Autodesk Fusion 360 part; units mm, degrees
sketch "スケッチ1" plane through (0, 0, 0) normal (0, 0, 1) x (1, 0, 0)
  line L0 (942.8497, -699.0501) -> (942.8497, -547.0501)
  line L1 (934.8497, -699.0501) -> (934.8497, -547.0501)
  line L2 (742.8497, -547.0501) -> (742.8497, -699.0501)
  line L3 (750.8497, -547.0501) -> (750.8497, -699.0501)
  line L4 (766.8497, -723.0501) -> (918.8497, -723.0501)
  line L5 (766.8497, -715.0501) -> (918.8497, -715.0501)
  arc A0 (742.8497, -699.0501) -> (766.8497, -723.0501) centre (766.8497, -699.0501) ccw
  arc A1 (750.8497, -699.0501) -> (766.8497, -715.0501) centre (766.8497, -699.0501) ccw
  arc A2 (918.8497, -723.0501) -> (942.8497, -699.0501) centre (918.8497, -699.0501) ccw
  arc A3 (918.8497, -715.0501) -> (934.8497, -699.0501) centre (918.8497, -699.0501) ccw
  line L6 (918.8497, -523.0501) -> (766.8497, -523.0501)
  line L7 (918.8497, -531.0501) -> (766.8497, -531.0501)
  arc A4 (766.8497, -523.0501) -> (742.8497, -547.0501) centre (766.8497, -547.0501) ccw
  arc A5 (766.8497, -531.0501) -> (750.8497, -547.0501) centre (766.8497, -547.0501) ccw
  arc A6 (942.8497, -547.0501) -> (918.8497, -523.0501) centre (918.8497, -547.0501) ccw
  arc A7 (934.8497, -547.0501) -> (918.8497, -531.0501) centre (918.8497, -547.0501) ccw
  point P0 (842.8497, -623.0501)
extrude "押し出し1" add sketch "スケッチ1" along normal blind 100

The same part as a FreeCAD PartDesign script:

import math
import FreeCAD as App
import Part
import Sketcher
Q = App.Units.Quantity

doc = App.newDocument("Part")
params = doc.addObject("Spreadsheet::Sheet", "Params")
for row, (alias, value) in enumerate([
    ("sketch1_radius", "24 mm"),
    ("sketch1_radius2", "16 mm"),
    ("sketch1_width", "152 mm"),
    ("pad1_length", "100 mm"),
], start=1):
    params.set(f"A{row}", alias)
    params.set(f"B{row}", "=" + value)
    params.setAlias(f"B{row}", alias)

body = doc.addObject("PartDesign::Body", "Body")

# Sketch on XY plane
sketch1 = body.newObject("Sketcher::SketchObject", "Sketch")
sketch1.AttachmentSupport = (doc.getObject("XY_Plane"), [""])
sketch1.MapMode = "FlatFace"
sketch1.addGeometry([
    Part.ArcOfCircle(Part.Circle(App.Vector(919, -699, 0), App.Vector(0, 0, 1), 24), math.radians(-90), math.radians(0)),  # 0
    Part.LineSegment(App.Vector(943, -699, 0), App.Vector(943, -547, 0)),  # 1
    Part.ArcOfCircle(Part.Circle(App.Vector(919, -547, 0), App.Vector(0, 0, 1), 24), math.radians(0), math.radians(90)),  # 2
    Part.LineSegment(App.Vector(919, -523, 0), App.Vector(767, -523, 0)),  # 3
    Part.ArcOfCircle(Part.Circle(App.Vector(767, -547, 0), App.Vector(0, 0, 1), 24), math.radians(90), math.radians(180)),  # 4
    Part.LineSegment(App.Vector(743, -547, 0), App.Vector(743, -699, 0)),  # 5
    Part.ArcOfCircle(Part.Circle(App.Vector(767, -699, 0), App.Vector(0, 0, 1), 24), math.radians(180), math.radians(270)),  # 6
    Part.LineSegment(App.Vector(767, -723, 0), App.Vector(919, -723, 0)),  # 7
    Part.LineSegment(App.Vector(935, -547, 0), App.Vector(935, -699, 0)),  # 8
    Part.ArcOfCircle(Part.Circle(App.Vector(919, -699, 0), App.Vector(0, 0, 1), 16), math.radians(-90), math.radians(0)),  # 9
    Part.LineSegment(App.Vector(919, -715, 0), App.Vector(767, -715, 0)),  # 10
    Part.ArcOfCircle(Part.Circle(App.Vector(767, -699, 0), App.Vector(0, 0, 1), 16), math.radians(180), math.radians(270)),  # 11
    Part.LineSegment(App.Vector(751, -699, 0), App.Vector(751, -547, 0)),  # 12
    Part.ArcOfCircle(Part.Circle(App.Vector(767, -547, 0), App.Vector(0, 0, 1), 16), math.radians(90), math.radians(180)),  # 13
    Part.LineSegment(App.Vector(767, -531, 0), App.Vector(919, -531, 0)),  # 14
    Part.ArcOfCircle(Part.Circle(App.Vector(919, -547, 0), App.Vector(0, 0, 1), 16), math.radians(0), math.radians(90)),  # 15
], False)
sketch1.addConstraint([
    Sketcher.Constraint("Tangent", 0, 2, 1, 1),
    Sketcher.Constraint("Tangent", 1, 2, 2, 1),
    Sketcher.Constraint("Tangent", 2, 2, 3, 1),
    Sketcher.Constraint("Tangent", 3, 2, 4, 1),
    Sketcher.Constraint("Tangent", 4, 2, 5, 1),
    Sketcher.Constraint("Tangent", 5, 2, 6, 1),
    Sketcher.Constraint("Tangent", 6, 2, 7, 1),
    Sketcher.Constraint("Tangent", 7, 2, 0, 1),
    Sketcher.Constraint("Tangent", 8, 2, 9, 2),
    Sketcher.Constraint("Tangent", 9, 1, 10, 1),
    Sketcher.Constraint("Tangent", 10, 2, 11, 2),
    Sketcher.Constraint("Tangent", 11, 1, 12, 1),
    Sketcher.Constraint("Tangent", 12, 2, 13, 2),
    Sketcher.Constraint("Tangent", 13, 1, 14, 1),
    Sketcher.Constraint("Tangent", 14, 2, 15, 2),
    Sketcher.Constraint("Tangent", 15, 1, 8, 1),
    Sketcher.Constraint("Vertical", 1),
    Sketcher.Constraint("Horizontal", 3),
    Sketcher.Constraint("Vertical", 5),
    Sketcher.Constraint("Horizontal", 7),
    Sketcher.Constraint("Vertical", 8),
    Sketcher.Constraint("Horizontal", 10),
    Sketcher.Constraint("Vertical", 12),
    Sketcher.Constraint("Horizontal", 14),
    Sketcher.Constraint("Coincident", 9, 3, 0, 3),
    Sketcher.Constraint("Coincident", 11, 3, 6, 3),
    Sketcher.Constraint("Coincident", 13, 3, 4, 3),
    Sketcher.Constraint("Equal", 0, 2),
    Sketcher.Constraint("Equal", 2, 4),
    Sketcher.Constraint("Equal", 4, 6),
    Sketcher.Constraint("Equal", 13, 15),
    Sketcher.Constraint("Equal", 14, 1),
    Sketcher.Constraint("Radius", 0, Q("24 mm")),
    Sketcher.Constraint("Radius", 9, Q("16 mm")),
    Sketcher.Constraint("DistanceX", 3, 2, 3, 1, Q("152 mm")),
    Sketcher.Constraint("DistanceY", 0, 3, -1, 1, Q("699.05 mm")),
    Sketcher.Constraint("DistanceX", -1, 1, 0, 3, Q("918.8497 mm")),
])
sketch1.setExpression("Constraints[32]", "Params.sketch1_radius")
sketch1.setExpression("Constraints[33]", "Params.sketch1_radius2")
sketch1.setExpression("Constraints[34]", "Params.sketch1_width")
pad1 = body.newObject("PartDesign::Pad", "Pad")
pad1.Profile = sketch1
pad1.setExpression("Length", "Params.pad1_length")

doc.recompute()
